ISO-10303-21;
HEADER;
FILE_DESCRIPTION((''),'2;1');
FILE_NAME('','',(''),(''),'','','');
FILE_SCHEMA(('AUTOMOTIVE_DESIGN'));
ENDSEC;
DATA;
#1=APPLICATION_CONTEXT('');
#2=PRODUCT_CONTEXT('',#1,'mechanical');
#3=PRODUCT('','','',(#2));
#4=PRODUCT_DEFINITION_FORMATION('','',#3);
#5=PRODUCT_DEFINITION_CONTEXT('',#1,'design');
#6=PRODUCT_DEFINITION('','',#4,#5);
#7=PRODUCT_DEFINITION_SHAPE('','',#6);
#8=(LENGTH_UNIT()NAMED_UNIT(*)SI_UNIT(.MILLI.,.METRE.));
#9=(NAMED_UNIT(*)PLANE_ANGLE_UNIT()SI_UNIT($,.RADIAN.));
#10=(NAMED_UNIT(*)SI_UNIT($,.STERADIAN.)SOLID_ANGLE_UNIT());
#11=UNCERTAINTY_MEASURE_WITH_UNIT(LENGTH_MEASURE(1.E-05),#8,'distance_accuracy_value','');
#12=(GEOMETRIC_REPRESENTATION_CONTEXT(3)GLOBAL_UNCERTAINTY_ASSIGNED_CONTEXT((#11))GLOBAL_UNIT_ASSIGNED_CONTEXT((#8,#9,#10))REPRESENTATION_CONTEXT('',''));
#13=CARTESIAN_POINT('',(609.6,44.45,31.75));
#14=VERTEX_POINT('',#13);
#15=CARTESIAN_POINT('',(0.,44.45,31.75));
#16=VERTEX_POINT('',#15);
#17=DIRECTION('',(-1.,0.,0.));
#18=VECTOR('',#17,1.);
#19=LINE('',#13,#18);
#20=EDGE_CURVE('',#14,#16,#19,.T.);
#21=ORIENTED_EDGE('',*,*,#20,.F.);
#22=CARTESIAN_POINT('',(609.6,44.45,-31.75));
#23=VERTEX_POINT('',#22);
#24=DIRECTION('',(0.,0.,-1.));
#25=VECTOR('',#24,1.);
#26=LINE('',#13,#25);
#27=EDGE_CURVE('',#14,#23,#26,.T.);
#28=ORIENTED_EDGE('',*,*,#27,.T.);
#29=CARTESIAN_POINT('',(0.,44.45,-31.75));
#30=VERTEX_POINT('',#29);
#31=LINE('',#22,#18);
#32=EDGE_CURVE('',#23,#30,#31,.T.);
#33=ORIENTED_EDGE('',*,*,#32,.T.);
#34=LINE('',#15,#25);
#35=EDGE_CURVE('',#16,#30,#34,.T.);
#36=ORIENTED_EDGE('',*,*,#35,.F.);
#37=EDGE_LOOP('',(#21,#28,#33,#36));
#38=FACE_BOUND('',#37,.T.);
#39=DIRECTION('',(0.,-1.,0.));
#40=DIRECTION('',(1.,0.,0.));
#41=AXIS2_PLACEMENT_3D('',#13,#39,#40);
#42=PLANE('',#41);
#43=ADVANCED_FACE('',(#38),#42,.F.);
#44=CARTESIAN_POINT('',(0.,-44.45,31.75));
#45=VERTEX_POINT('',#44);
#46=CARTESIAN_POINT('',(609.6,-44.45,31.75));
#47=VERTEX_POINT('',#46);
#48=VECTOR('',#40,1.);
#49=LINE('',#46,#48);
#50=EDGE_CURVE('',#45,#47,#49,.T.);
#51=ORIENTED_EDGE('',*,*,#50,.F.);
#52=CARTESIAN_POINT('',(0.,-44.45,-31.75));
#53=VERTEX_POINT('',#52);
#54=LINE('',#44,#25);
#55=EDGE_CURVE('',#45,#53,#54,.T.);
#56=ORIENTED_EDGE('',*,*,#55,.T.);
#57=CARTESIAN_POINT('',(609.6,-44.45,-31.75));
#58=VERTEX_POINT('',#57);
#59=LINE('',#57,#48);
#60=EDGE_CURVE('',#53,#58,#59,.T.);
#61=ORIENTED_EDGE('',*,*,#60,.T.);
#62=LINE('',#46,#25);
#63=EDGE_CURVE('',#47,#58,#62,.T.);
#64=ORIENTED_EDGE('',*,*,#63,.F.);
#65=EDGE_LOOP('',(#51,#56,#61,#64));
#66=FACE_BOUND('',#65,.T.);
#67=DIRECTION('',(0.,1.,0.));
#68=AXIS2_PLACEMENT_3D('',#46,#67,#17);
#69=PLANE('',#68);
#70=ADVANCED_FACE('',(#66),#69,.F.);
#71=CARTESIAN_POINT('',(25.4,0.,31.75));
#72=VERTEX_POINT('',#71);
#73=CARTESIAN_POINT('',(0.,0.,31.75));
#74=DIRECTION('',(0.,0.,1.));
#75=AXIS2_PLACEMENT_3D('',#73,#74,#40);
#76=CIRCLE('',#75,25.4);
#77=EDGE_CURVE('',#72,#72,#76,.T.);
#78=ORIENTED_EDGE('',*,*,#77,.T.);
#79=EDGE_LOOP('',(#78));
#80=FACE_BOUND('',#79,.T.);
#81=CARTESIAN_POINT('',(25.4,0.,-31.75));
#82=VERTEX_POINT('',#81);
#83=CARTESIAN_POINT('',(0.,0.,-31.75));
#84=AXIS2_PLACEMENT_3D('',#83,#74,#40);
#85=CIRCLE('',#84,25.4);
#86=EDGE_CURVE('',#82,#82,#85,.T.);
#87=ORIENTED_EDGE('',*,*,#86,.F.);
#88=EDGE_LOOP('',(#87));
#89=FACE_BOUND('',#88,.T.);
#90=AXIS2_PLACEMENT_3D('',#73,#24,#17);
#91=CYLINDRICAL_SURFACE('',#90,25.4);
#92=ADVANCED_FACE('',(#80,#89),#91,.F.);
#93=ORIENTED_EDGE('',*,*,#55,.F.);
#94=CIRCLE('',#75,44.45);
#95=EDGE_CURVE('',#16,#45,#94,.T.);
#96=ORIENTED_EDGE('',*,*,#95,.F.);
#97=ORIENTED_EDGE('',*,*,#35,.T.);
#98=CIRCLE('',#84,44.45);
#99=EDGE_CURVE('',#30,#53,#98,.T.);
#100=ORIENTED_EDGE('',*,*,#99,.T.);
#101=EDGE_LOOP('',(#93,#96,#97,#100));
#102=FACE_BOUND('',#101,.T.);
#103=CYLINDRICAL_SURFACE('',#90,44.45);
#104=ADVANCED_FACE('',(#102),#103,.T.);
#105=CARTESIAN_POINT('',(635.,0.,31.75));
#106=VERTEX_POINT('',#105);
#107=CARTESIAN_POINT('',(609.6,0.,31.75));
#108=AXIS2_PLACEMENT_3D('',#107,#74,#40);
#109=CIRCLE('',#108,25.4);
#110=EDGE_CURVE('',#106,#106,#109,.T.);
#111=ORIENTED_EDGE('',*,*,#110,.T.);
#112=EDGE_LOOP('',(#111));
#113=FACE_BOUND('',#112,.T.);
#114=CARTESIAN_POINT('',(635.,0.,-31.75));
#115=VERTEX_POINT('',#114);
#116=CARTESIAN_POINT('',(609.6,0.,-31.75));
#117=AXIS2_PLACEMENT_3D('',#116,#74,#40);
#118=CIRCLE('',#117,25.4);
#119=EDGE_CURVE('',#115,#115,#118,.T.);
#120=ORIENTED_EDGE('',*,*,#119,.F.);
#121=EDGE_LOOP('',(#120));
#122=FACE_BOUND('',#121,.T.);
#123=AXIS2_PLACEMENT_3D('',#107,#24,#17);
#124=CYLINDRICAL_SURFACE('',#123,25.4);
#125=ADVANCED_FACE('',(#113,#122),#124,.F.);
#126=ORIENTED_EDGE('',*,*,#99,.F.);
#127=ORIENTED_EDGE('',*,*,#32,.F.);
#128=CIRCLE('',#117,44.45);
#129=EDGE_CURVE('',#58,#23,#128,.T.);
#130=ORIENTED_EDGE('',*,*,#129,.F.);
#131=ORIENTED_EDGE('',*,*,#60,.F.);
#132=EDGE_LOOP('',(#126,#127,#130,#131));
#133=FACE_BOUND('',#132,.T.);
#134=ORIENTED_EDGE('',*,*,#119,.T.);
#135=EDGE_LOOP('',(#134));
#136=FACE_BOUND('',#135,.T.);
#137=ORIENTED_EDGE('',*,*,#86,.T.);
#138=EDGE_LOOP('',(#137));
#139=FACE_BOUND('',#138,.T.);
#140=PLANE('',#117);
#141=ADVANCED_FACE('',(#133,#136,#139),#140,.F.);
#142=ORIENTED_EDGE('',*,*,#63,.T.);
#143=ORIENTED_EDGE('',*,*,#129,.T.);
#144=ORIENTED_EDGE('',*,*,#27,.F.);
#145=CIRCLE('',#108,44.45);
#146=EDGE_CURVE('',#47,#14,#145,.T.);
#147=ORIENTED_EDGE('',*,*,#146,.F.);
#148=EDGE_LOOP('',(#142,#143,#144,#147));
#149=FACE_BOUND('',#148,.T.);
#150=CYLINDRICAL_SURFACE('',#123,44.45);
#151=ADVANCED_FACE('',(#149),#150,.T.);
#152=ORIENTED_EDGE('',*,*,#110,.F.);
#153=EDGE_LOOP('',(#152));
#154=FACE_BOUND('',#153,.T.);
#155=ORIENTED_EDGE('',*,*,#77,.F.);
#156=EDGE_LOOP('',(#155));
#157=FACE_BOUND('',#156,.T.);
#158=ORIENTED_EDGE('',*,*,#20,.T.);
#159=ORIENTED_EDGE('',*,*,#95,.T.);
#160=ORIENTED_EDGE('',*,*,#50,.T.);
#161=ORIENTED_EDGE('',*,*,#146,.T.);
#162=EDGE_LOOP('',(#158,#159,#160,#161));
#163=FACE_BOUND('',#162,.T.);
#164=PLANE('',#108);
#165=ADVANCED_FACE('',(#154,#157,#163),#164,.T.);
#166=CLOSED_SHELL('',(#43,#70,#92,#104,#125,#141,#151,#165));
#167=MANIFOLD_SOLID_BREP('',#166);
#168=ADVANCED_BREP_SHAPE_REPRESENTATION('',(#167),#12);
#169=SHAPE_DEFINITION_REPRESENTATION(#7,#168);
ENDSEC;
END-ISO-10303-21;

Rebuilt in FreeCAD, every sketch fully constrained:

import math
import FreeCAD as App
import Part
import Sketcher
from FreeCAD import Vector
Q = App.Units.Quantity

doc = App.newDocument("Part")
body = doc.addObject("PartDesign::Body", "Body")

sketch1 = body.newObject("Sketcher::SketchObject", "Sketch")
sketch1.AttachmentSupport = (doc.getObject("XY_Plane"), [""])
sketch1.MapMode = "FlatFace"
sketch1.addGeometry(Part.LineSegment(Vector(0, -44, 0), Vector(610, -44, 0)), False)
sketch1.addGeometry(Part.ArcOfCircle(Part.Circle(Vector(610, 0, 0), Vector(0, 0, 1), 44), math.radians(-90), math.radians(90)), False)
sketch1.addGeometry(Part.LineSegment(Vector(610, 44, 0), Vector(0, 44, 0)), False)
sketch1.addGeometry(Part.ArcOfCircle(Part.Circle(Vector(0, 0, 0), Vector(0, 0, 1), 44), math.radians(90), math.radians(270)), False)
sketch1.addGeometry(Part.Circle(Vector(610, 0, 0), Vector(0, 0, 1), 25), False)
sketch1.addGeometry(Part.Circle(Vector(0, 0, 0), Vector(0, 0, 1), 25), False)
sketch1.addConstraint(Sketcher.Constraint("Tangent", 0, 2, 1, 1))
sketch1.addConstraint(Sketcher.Constraint("Tangent", 1, 2, 2, 1))
sketch1.addConstraint(Sketcher.Constraint("Tangent", 2, 2, 3, 1))
sketch1.addConstraint(Sketcher.Constraint("Tangent", 3, 2, 0, 1))
sketch1.addConstraint(Sketcher.Constraint("Horizontal", 0))
sketch1.addConstraint(Sketcher.Constraint("Horizontal", 2))
sketch1.addConstraint(Sketcher.Constraint("Coincident", 3, 3, -1, 1))
sketch1.addConstraint(Sketcher.Constraint("Coincident", 5, 3, -1, 1))
sketch1.addConstraint(Sketcher.Constraint("Coincident", 4, 3, 1, 3))
sketch1.addConstraint(Sketcher.Constraint("Equal", 4, 5))
sketch1.addConstraint(Sketcher.Constraint("Diameter", 4, Q("2 in")))
sketch1.addConstraint(Sketcher.Constraint("DistanceX", 0, 1, 0, 2, Q("24 in")))
sketch1.addConstraint(Sketcher.Constraint("Radius", 1, Q("1.75 in")))
pad1 = body.newObject("PartDesign::Pad", "Pad")
pad1.Profile = sketch1
pad1.Length = Q("2.5 in")
pad1.Midplane = True

doc.recompute()
